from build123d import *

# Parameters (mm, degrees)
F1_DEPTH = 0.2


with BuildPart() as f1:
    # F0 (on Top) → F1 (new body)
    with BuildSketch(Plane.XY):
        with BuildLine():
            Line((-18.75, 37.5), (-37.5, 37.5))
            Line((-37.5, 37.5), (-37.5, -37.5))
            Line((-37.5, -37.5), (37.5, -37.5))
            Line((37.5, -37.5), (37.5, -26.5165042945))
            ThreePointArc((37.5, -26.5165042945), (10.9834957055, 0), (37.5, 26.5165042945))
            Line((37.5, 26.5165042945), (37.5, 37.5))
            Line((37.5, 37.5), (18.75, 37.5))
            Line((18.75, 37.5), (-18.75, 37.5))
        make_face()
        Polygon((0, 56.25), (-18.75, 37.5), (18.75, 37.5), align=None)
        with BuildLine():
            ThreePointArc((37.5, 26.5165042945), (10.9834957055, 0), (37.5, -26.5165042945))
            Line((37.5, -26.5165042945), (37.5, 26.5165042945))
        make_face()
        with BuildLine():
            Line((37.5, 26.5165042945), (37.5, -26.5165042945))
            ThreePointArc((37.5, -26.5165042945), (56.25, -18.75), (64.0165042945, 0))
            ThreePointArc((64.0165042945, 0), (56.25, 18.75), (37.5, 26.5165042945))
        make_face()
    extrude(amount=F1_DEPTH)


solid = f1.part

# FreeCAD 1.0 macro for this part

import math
import FreeCAD as App
import Part
import Sketcher

V = App.Vector

doc = App.newDocument("Part")
body = doc.addObject("PartDesign::Body", "Body")

# Sketch on XY plane
sketch1 = body.newObject("Sketcher::SketchObject", "Sketch")
sketch1.AttachmentSupport = (doc.getObject("XY_Plane"), [""])
sketch1.MapMode = "FlatFace"
sketch1.addGeometry(Part.LineSegment(V(-38, 38, 0), V(-38, -38, 0)), False)
sketch1.addGeometry(Part.LineSegment(V(-38, -38, 0), V(38, -38, 0)), False)
sketch1.addGeometry(Part.LineSegment(V(38, -38, 0), V(38, -27, 0)), False)
sketch1.addGeometry(Part.ArcOfCircle(Part.Circle(V(38, 0, 0), V(0, 0, 1), 27), math.radians(-90), math.radians(90)), False)
sketch1.addGeometry(Part.LineSegment(V(38, 27, 0), V(38, 38, 0)), False)
sketch1.addGeometry(Part.LineSegment(V(38, 38, 0), V(19, 38, 0)), False)
sketch1.addGeometry(Part.LineSegment(V(19, 38, 0), V(0, 56, 0)), False)
sketch1.addGeometry(Part.LineSegment(V(0, 56, 0), V(-19, 38, 0)), False)
sketch1.addGeometry(Part.LineSegment(V(-19, 38, 0), V(-38, 38, 0)), False)
sketch1.addConstraint(Sketcher.Constraint("Coincident", 0, 2, 1, 1))
sketch1.addConstraint(Sketcher.Constraint("Coincident", 1, 2, 2, 1))
sketch1.addConstraint(Sketcher.Constraint("Coincident", 2, 2, 3, 1))
sketch1.addConstraint(Sketcher.Constraint("Coincident", 3, 2, 4, 1))
sketch1.addConstraint(Sketcher.Constraint("Coincident", 4, 2, 5, 1))
sketch1.addConstraint(Sketcher.Constraint("Coincident", 5, 2, 6, 1))
sketch1.addConstraint(Sketcher.Constraint("Coincident", 6, 2, 7, 1))
sketch1.addConstraint(Sketcher.Constraint("Coincident", 7, 2, 8, 1))
sketch1.addConstraint(Sketcher.Constraint("Coincident", 8, 2, 0, 1))
sketch1.addConstraint(Sketcher.Constraint("Vertical", 0))
sketch1.addConstraint(Sketcher.Constraint("Horizontal", 1))
sketch1.addConstraint(Sketcher.Constraint("Vertical", 2))
sketch1.addConstraint(Sketcher.Constraint("Vertical", 4))
sketch1.addConstraint(Sketcher.Constraint("Horizontal", 5))
sketch1.addConstraint(Sketcher.Constraint("Horizontal", 8))
sketch1.addConstraint(Sketcher.Constraint("Symmetric", 0, 2, 4, 2, -1, 1))
sketch1.addConstraint(Sketcher.Constraint("Symmetric", 1, 2, 8, 2, -1, 1))
sketch1.addConstraint(Sketcher.Constraint("PointOnObject", 3, 3, -1))
sketch1.addConstraint(Sketcher.Constraint("PointOnObject", 6, 2, -2))
sketch1.addConstraint(Sketcher.Constraint("Perpendicular", 6, 7))
sketch1.addConstraint(Sketcher.Constraint("Vertical", 3, 3, 1, 2))
sketch1.addConstraint(Sketcher.Constraint("Equal", 5, 8))
sketch1.addConstraint(Sketcher.Constraint("Equal", 1, 0))
sketch1.addConstraint(Sketcher.Constraint("DistanceX", 1, 1, 1, 2, 75.0))
sketch1.addConstraint(Sketcher.Constraint("DistanceX", 5, 2, 5, 1, 18.75))
sketch1.addConstraint(Sketcher.Constraint("Radius", 3, 26.516504))
pad1 = body.newObject("PartDesign::Pad", "Pad")
pad1.Profile = sketch1
pad1.Length = 0.2

doc.recompute()
